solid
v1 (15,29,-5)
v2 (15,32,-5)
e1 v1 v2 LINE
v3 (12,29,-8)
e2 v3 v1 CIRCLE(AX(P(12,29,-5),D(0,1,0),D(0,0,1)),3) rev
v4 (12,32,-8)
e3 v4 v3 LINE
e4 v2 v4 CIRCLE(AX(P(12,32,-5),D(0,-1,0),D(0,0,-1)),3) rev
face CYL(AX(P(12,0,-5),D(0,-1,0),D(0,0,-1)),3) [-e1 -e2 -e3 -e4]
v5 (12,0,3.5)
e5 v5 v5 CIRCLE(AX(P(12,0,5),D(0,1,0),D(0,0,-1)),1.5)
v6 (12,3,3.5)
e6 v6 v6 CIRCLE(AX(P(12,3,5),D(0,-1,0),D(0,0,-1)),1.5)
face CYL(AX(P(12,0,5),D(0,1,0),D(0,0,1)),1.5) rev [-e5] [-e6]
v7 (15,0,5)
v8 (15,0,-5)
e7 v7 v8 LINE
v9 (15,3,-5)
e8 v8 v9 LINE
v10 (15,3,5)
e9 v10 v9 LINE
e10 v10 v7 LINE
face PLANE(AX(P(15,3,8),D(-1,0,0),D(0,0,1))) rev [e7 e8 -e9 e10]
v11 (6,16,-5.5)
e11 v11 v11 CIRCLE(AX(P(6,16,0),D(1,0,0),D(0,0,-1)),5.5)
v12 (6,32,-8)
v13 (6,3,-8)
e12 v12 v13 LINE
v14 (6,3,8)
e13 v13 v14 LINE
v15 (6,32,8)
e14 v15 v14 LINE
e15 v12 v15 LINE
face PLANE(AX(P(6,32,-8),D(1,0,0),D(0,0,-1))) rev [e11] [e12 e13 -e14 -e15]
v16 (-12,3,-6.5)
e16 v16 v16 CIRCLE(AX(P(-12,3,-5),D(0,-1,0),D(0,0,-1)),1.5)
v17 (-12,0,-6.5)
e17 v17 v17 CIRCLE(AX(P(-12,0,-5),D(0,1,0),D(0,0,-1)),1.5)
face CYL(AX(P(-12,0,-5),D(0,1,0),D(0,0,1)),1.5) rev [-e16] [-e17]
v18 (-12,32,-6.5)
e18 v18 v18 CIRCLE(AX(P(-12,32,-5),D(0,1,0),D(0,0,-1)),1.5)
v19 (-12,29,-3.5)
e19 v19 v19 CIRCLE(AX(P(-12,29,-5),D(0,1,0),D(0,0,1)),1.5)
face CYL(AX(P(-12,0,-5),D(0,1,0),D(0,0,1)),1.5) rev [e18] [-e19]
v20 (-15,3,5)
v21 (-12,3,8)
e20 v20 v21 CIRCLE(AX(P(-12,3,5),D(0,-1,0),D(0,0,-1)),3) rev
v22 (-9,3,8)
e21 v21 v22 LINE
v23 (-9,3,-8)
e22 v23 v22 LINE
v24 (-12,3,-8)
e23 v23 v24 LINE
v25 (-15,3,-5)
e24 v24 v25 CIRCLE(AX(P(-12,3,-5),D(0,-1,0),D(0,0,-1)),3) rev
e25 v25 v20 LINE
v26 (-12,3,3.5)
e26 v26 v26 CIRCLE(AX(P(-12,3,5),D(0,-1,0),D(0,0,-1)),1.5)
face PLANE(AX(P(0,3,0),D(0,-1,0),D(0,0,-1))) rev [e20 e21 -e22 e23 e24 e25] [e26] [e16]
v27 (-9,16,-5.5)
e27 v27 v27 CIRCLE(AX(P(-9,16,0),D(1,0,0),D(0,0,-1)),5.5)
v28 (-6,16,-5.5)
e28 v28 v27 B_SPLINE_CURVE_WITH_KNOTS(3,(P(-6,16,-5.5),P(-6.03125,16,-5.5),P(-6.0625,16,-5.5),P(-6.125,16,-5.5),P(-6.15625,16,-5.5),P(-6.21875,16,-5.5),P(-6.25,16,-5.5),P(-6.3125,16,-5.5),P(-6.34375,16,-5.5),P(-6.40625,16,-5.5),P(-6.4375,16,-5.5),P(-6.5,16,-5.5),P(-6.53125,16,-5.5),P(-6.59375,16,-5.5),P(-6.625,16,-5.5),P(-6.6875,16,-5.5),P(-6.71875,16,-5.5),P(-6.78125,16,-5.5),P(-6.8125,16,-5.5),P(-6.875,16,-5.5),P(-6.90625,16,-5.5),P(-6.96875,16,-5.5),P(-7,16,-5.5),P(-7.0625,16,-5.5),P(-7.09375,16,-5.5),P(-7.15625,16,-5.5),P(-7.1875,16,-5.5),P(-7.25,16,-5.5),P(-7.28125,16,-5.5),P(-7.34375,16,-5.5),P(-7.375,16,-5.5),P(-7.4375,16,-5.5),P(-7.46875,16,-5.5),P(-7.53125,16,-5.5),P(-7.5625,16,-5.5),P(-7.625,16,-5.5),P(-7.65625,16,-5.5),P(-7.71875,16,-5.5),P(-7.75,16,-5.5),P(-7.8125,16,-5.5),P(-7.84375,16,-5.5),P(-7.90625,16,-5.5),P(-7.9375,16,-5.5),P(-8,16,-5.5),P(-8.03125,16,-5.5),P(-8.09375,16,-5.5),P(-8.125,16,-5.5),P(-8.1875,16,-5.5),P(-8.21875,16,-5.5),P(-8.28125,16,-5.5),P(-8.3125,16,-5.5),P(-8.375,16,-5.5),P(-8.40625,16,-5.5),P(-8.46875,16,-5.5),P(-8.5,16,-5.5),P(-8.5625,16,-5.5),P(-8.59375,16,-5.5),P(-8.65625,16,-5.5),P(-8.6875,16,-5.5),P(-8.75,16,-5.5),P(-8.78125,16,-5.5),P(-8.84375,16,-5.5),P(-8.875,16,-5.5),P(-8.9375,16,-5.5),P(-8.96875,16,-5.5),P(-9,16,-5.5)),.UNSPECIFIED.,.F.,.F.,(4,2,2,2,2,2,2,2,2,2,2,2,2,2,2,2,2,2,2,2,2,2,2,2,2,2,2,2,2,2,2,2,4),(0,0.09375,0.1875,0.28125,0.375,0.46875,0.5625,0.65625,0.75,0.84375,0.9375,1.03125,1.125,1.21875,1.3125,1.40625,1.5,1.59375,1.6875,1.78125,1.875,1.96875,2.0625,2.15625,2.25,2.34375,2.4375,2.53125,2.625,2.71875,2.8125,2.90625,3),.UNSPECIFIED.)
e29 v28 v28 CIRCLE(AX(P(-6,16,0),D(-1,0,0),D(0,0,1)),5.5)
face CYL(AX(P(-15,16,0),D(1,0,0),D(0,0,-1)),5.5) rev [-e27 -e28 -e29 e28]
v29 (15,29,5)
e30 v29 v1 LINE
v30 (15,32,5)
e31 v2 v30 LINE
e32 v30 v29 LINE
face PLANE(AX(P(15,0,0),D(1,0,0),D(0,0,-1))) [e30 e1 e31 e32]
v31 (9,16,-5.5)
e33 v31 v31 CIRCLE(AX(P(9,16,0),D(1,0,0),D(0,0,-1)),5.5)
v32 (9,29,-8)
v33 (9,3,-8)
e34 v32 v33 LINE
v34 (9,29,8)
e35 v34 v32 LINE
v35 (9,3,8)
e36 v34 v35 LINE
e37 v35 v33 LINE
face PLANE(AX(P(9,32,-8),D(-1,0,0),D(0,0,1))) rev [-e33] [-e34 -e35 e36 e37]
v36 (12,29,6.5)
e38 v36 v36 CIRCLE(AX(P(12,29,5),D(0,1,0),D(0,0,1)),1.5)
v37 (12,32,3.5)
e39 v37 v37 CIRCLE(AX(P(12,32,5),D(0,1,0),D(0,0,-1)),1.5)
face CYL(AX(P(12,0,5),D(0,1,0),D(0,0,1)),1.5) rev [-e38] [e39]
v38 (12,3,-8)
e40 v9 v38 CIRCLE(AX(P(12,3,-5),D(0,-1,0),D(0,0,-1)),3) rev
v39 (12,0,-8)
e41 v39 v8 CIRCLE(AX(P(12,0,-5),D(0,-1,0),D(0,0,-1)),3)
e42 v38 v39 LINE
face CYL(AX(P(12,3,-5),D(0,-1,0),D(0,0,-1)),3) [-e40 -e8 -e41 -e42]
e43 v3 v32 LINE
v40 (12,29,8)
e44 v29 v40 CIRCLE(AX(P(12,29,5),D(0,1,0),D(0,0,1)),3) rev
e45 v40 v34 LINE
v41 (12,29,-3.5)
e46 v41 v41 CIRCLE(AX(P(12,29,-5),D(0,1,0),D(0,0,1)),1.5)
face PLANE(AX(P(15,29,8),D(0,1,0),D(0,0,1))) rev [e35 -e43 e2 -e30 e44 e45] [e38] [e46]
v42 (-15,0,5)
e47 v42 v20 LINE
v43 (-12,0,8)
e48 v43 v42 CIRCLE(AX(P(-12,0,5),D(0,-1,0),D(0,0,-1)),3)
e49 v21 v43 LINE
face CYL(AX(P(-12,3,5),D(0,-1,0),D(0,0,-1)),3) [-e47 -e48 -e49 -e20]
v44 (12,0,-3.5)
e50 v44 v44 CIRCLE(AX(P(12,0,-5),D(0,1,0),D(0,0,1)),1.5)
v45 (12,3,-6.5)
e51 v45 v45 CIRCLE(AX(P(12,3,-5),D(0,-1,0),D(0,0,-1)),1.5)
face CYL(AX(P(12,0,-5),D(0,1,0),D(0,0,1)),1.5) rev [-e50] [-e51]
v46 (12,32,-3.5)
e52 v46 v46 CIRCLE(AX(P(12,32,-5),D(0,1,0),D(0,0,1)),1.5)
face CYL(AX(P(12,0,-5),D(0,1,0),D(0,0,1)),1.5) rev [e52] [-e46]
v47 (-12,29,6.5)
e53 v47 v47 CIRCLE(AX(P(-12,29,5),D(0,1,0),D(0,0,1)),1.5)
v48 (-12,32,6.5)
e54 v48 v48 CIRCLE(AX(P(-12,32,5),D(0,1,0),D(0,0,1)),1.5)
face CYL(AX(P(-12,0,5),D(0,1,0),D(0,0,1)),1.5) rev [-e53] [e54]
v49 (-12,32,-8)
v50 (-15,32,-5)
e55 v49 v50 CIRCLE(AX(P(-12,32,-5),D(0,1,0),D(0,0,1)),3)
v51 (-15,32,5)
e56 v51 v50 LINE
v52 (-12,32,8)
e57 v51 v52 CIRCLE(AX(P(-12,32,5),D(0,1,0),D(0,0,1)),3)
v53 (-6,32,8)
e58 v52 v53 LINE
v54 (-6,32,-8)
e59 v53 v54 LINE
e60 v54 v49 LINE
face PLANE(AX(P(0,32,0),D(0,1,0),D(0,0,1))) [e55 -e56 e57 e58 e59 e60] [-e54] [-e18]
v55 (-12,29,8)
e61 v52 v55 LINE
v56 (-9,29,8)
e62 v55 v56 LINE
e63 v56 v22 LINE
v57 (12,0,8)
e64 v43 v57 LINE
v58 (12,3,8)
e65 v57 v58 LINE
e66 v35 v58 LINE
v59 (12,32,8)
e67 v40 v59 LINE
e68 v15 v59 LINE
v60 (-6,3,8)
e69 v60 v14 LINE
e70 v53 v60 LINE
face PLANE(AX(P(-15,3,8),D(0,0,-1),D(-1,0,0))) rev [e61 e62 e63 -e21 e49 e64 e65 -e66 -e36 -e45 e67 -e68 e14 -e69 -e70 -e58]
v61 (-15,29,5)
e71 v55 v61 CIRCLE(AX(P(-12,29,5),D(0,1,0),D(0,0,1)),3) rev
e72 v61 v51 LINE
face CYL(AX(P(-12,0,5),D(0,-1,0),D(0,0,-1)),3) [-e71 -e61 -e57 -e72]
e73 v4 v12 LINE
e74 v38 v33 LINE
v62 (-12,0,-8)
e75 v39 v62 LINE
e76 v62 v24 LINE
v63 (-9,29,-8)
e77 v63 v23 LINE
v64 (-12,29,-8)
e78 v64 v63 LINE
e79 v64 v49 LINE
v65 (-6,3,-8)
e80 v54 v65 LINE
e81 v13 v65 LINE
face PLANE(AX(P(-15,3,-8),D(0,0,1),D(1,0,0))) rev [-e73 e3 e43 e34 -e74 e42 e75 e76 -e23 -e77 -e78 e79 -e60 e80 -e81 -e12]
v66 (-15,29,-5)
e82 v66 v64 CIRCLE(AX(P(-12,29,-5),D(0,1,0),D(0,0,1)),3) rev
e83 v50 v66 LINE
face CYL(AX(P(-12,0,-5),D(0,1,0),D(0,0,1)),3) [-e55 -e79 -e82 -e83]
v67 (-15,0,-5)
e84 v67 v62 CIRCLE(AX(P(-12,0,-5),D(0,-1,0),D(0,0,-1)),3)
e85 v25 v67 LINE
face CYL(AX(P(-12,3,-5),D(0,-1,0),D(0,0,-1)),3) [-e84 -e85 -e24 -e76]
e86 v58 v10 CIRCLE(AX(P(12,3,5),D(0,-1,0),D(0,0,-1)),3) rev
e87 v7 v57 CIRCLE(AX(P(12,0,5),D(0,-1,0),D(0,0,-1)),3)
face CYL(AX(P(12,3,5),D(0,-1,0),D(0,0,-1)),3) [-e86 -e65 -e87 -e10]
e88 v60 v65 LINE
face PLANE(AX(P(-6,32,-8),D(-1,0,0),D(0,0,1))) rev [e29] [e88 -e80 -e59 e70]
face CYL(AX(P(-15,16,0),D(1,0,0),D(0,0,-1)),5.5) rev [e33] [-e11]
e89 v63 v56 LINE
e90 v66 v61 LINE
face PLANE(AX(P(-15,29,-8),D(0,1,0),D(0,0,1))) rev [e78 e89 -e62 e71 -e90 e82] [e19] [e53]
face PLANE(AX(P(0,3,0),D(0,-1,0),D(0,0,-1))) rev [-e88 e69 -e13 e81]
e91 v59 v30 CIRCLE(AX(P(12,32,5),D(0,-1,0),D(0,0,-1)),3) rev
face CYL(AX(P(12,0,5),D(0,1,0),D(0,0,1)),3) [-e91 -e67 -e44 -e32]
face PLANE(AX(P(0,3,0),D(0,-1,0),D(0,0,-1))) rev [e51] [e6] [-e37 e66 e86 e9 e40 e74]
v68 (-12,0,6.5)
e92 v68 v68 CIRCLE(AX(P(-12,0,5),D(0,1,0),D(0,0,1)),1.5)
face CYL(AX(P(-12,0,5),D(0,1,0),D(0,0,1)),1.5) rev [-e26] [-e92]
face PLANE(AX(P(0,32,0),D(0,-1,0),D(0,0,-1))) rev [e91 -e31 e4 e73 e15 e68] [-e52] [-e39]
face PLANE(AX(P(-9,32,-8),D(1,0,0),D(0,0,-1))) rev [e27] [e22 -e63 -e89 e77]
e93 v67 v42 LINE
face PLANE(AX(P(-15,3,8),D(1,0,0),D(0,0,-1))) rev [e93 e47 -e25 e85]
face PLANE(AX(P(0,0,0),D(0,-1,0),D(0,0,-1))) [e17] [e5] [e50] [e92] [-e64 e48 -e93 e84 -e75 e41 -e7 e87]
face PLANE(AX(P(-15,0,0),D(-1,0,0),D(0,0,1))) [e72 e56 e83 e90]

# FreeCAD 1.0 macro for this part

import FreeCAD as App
import Part
import Sketcher
from FreeCAD import Vector
Q = App.Units.Quantity


def edges_at(feature, points):
    """Names of the edges that pass closest to the given points."""
    edges = feature.Shape.Edges
    near = lambda p: min(range(len(edges)), key=lambda i: edges[i].distToShape(Part.Vertex(*p))[0])
    return sorted({f"Edge{near(p) + 1}" for p in points})


def add_polygon(sketch, points):
    """Adds a closed chain of lines whose ends are joined by coincident constraints."""
    first, n = sketch.GeometryCount, len(points)
    for a, b in zip(points, points[1:] + points[:1]):
        sketch.addGeometry(Part.LineSegment(App.Vector(*a, 0), App.Vector(*b, 0)), False)
    for i in range(n):
        sketch.addConstraint(Sketcher.Constraint("Coincident", first + i, 2, first + (i + 1) % n, 1))

doc = App.newDocument("Part")
body = doc.addObject("PartDesign::Body", "Body")

# Sketch on XZ plane
sketch1 = doc.addObject("Sketcher::SketchObject", "Sketch")
body.addObject(sketch1)
sketch1.AttachmentSupport = (doc.XZ_Plane, [""])
sketch1.MapMode = "FlatFace"
add_polygon(sketch1, [(-15, -8), (-15, 8), (15, 8), (15, -8)])  # lines 0-3
sketch1.addConstraint([
    Sketcher.Constraint("Vertical", 0),
    Sketcher.Constraint("Horizontal", 1),
    Sketcher.Constraint("Vertical", 2),
    Sketcher.Constraint("Horizontal", 3),
    Sketcher.Constraint("Symmetric", 0, 2, 2, 2, -1, 1),
    Sketcher.Constraint("DistanceX", 1, 1, 1, 2, Q("30 mm")),
    Sketcher.Constraint("DistanceY", 0, 1, 0, 2, Q("16 mm")),
])
pad1 = doc.addObject("PartDesign::Pad", "Pad")
body.addObject(pad1)
pad1.Profile = sketch1
pad1.Length = 3
pad1.Reversed = True

# Sketch on XZ plane
sketch2 = doc.addObject("Sketcher::SketchObject", "Sketch001")
body.addObject(sketch2)
sketch2.AttachmentSupport = (doc.XZ_Plane, [""])
sketch2.MapMode = "FlatFace"
sketch2.AttachmentOffset = App.Placement(Vector(0, 0, -3), App.Rotation())
add_polygon(sketch2, [(6, -8), (6, 8), (9, 8), (9, -8)])  # lines 0-3
add_polygon(sketch2, [(-9, -8), (-9, 8), (-6, 8), (-6, -8)])  # lines 4-7
sketch2.addConstraint([
    Sketcher.Constraint("Vertical", 0),
    Sketcher.Constraint("Horizontal", 1),
    Sketcher.Constraint("Vertical", 2),
    Sketcher.Constraint("Horizontal", 3),
    Sketcher.Constraint("Vertical", 4),
    Sketcher.Constraint("Horizontal", 5),
    Sketcher.Constraint("Vertical", 6),
    Sketcher.Constraint("Horizontal", 7),
    Sketcher.Constraint("Symmetric", 2, 2, 4, 2, -1, 1),
    Sketcher.Constraint("Symmetric", 0, 2, 6, 2, -1, 1),
    Sketcher.Constraint("Horizontal", 1, 2, 4, 2),
    Sketcher.Constraint("DistanceX", 1, 1, 1, 2, Q("3 mm")),
    Sketcher.Constraint("DistanceY", 0, 1, 0, 2, Q("16 mm")),
    Sketcher.Constraint("DistanceX", -1, 1, 0, 2, Q("6 mm")),
])
pad2 = doc.addObject("PartDesign::Pad", "Pad001")
body.addObject(pad2)
pad2.Profile = sketch2
pad2.Length = 29
pad2.Reversed = True

# Sketch on YZ plane
sketch3 = doc.addObject("Sketcher::SketchObject", "Sketch002")
body.addObject(sketch3)
sketch3.AttachmentSupport = (doc.YZ_Plane, [""])
sketch3.MapMode = "FlatFace"
sketch3.AttachmentOffset = App.Placement(Vector(0, 0, -9), App.Rotation())
add_polygon(sketch3, [(32, -8), (29, -8), (29, 8), (32, 8)])  # lines 0-3
sketch3.addConstraint([
    Sketcher.Constraint("Horizontal", 0),
    Sketcher.Constraint("Vertical", 1),
    Sketcher.Constraint("Horizontal", 2),
    Sketcher.Constraint("Vertical", 3),
    Sketcher.Constraint("DistanceX", 0, 2, 0, 1, Q("3 mm")),
    Sketcher.Constraint("DistanceY", 1, 1, 1, 2, Q("16 mm")),
    Sketcher.Constraint("DistanceX", -1, 1, 0, 2, Q("29 mm")),
    Sketcher.Constraint("DistanceY", 0, 2, -1, 1, Q("8 mm")),
])
pad3 = doc.addObject("PartDesign::Pad", "Pad002")
body.addObject(pad3)
pad3.Profile = sketch3
pad3.Length = 6
pad3.Reversed = True

# Sketch on YZ plane
sketch4 = doc.addObject("Sketcher::SketchObject", "Sketch003")
body.addObject(sketch4)
sketch4.AttachmentSupport = (doc.YZ_Plane, [""])
sketch4.MapMode = "FlatFace"
sketch4.AttachmentOffset = App.Placement(Vector(0, 0, 9), App.Rotation())
add_polygon(sketch4, [(32, 8), (29, 8), (29, -8), (32, -8)])  # lines 0-3
sketch4.addConstraint([
    Sketcher.Constraint("Horizontal", 0),
    Sketcher.Constraint("Vertical", 1),
    Sketcher.Constraint("Horizontal", 2),
    Sketcher.Constraint("Vertical", 3),
    Sketcher.Constraint("DistanceX", 0, 2, 0, 1, Q("3 mm")),
    Sketcher.Constraint("DistanceY", 1, 2, 1, 1, Q("16 mm")),
    Sketcher.Constraint("DistanceX", -1, 1, 0, 2, Q("29 mm")),
    Sketcher.Constraint("DistanceY", -1, 1, 0, 2, Q("8 mm")),
])
pad4 = doc.addObject("PartDesign::Pad", "Pad003")
body.addObject(pad4)
pad4.Profile = sketch4
pad4.Length = 6

# Sketch on YZ plane
sketch5 = doc.addObject("Sketcher::SketchObject", "Sketch004")
body.addObject(sketch5)
sketch5.AttachmentSupport = (doc.YZ_Plane, [""])
sketch5.MapMode = "FlatFace"
sketch5.AttachmentOffset = App.Placement(Vector(0, 0, 9), App.Rotation())
sketch5.addGeometry(Part.Circle(Vector(16, 0, 0), Vector(0, 0, 1), 5.5), False)
sketch5.addConstraint([
    Sketcher.Constraint("PointOnObject", 0, 3, -1),
    Sketcher.Constraint("Diameter", 0, Q("11 mm")),
    Sketcher.Constraint("DistanceX", -1, 1, 0, 3, Q("16 mm")),
])
pocket1 = doc.addObject("PartDesign::Pocket", "Pocket")
body.addObject(pocket1)
pocket1.Profile = sketch5
pocket1.Type = "ThroughAll"

# Sketch on XZ plane
sketch6 = doc.addObject("Sketcher::SketchObject", "Sketch005")
body.addObject(sketch6)
sketch6.AttachmentSupport = (doc.XZ_Plane, [""])
sketch6.MapMode = "FlatFace"
sketch6.AttachmentOffset = App.Placement(Vector(0, 0, -32), App.Rotation())
sketch6.addGeometry([
    Part.Circle(Vector(12, -5, 0), Vector(0, 0, 1), 1.5),
    Part.Circle(Vector(12, 5, 0), Vector(0, 0, 1), 1.5),
    Part.Circle(Vector(-12, 5, 0), Vector(0, 0, 1), 1.5),
    Part.Circle(Vector(-12, -5, 0), Vector(0, 0, 1), 1.5),
], False)
sketch6.addConstraint([
    Sketcher.Constraint("Equal", 0, 1),
    Sketcher.Constraint("Equal", 1, 2),
    Sketcher.Constraint("Equal", 2, 3),
    Sketcher.Constraint("Symmetric", 0, 3, 2, 3, -1, 1),
    Sketcher.Constraint("Symmetric", 1, 3, 3, 3, -1, 1),
    Sketcher.Constraint("Symmetric", 1, 3, 2, 3, -2),
    Sketcher.Constraint("Diameter", 0, Q("3 mm")),
    Sketcher.Constraint("DistanceX", -1, 1, 0, 3, Q("12 mm")),
    Sketcher.Constraint("DistanceY", 0, 3, -1, 1, Q("5 mm")),
])
pocket2 = doc.addObject("PartDesign::Pocket", "Pocket001")
body.addObject(pocket2)
pocket2.Profile = sketch6
pocket2.Type = "ThroughAll"
pocket2.Reversed = True
doc.recompute()

fillet = doc.addObject("PartDesign::Fillet", "Fillet")
body.addObject(fillet)
fillet.Base = (pocket2, edges_at(pocket2, [
    (-15, 30.5, -8),
    (-15, 30.5, 8),
    (15, 30.5, 8),
    (15, 30.5, -8),
    (15, 1.5, 8),
    (-15, 1.5, 8),
    (-15, 1.5, -8),
    (15, 1.5, -8),
]))
fillet.Radius = 3

doc.recompute()
